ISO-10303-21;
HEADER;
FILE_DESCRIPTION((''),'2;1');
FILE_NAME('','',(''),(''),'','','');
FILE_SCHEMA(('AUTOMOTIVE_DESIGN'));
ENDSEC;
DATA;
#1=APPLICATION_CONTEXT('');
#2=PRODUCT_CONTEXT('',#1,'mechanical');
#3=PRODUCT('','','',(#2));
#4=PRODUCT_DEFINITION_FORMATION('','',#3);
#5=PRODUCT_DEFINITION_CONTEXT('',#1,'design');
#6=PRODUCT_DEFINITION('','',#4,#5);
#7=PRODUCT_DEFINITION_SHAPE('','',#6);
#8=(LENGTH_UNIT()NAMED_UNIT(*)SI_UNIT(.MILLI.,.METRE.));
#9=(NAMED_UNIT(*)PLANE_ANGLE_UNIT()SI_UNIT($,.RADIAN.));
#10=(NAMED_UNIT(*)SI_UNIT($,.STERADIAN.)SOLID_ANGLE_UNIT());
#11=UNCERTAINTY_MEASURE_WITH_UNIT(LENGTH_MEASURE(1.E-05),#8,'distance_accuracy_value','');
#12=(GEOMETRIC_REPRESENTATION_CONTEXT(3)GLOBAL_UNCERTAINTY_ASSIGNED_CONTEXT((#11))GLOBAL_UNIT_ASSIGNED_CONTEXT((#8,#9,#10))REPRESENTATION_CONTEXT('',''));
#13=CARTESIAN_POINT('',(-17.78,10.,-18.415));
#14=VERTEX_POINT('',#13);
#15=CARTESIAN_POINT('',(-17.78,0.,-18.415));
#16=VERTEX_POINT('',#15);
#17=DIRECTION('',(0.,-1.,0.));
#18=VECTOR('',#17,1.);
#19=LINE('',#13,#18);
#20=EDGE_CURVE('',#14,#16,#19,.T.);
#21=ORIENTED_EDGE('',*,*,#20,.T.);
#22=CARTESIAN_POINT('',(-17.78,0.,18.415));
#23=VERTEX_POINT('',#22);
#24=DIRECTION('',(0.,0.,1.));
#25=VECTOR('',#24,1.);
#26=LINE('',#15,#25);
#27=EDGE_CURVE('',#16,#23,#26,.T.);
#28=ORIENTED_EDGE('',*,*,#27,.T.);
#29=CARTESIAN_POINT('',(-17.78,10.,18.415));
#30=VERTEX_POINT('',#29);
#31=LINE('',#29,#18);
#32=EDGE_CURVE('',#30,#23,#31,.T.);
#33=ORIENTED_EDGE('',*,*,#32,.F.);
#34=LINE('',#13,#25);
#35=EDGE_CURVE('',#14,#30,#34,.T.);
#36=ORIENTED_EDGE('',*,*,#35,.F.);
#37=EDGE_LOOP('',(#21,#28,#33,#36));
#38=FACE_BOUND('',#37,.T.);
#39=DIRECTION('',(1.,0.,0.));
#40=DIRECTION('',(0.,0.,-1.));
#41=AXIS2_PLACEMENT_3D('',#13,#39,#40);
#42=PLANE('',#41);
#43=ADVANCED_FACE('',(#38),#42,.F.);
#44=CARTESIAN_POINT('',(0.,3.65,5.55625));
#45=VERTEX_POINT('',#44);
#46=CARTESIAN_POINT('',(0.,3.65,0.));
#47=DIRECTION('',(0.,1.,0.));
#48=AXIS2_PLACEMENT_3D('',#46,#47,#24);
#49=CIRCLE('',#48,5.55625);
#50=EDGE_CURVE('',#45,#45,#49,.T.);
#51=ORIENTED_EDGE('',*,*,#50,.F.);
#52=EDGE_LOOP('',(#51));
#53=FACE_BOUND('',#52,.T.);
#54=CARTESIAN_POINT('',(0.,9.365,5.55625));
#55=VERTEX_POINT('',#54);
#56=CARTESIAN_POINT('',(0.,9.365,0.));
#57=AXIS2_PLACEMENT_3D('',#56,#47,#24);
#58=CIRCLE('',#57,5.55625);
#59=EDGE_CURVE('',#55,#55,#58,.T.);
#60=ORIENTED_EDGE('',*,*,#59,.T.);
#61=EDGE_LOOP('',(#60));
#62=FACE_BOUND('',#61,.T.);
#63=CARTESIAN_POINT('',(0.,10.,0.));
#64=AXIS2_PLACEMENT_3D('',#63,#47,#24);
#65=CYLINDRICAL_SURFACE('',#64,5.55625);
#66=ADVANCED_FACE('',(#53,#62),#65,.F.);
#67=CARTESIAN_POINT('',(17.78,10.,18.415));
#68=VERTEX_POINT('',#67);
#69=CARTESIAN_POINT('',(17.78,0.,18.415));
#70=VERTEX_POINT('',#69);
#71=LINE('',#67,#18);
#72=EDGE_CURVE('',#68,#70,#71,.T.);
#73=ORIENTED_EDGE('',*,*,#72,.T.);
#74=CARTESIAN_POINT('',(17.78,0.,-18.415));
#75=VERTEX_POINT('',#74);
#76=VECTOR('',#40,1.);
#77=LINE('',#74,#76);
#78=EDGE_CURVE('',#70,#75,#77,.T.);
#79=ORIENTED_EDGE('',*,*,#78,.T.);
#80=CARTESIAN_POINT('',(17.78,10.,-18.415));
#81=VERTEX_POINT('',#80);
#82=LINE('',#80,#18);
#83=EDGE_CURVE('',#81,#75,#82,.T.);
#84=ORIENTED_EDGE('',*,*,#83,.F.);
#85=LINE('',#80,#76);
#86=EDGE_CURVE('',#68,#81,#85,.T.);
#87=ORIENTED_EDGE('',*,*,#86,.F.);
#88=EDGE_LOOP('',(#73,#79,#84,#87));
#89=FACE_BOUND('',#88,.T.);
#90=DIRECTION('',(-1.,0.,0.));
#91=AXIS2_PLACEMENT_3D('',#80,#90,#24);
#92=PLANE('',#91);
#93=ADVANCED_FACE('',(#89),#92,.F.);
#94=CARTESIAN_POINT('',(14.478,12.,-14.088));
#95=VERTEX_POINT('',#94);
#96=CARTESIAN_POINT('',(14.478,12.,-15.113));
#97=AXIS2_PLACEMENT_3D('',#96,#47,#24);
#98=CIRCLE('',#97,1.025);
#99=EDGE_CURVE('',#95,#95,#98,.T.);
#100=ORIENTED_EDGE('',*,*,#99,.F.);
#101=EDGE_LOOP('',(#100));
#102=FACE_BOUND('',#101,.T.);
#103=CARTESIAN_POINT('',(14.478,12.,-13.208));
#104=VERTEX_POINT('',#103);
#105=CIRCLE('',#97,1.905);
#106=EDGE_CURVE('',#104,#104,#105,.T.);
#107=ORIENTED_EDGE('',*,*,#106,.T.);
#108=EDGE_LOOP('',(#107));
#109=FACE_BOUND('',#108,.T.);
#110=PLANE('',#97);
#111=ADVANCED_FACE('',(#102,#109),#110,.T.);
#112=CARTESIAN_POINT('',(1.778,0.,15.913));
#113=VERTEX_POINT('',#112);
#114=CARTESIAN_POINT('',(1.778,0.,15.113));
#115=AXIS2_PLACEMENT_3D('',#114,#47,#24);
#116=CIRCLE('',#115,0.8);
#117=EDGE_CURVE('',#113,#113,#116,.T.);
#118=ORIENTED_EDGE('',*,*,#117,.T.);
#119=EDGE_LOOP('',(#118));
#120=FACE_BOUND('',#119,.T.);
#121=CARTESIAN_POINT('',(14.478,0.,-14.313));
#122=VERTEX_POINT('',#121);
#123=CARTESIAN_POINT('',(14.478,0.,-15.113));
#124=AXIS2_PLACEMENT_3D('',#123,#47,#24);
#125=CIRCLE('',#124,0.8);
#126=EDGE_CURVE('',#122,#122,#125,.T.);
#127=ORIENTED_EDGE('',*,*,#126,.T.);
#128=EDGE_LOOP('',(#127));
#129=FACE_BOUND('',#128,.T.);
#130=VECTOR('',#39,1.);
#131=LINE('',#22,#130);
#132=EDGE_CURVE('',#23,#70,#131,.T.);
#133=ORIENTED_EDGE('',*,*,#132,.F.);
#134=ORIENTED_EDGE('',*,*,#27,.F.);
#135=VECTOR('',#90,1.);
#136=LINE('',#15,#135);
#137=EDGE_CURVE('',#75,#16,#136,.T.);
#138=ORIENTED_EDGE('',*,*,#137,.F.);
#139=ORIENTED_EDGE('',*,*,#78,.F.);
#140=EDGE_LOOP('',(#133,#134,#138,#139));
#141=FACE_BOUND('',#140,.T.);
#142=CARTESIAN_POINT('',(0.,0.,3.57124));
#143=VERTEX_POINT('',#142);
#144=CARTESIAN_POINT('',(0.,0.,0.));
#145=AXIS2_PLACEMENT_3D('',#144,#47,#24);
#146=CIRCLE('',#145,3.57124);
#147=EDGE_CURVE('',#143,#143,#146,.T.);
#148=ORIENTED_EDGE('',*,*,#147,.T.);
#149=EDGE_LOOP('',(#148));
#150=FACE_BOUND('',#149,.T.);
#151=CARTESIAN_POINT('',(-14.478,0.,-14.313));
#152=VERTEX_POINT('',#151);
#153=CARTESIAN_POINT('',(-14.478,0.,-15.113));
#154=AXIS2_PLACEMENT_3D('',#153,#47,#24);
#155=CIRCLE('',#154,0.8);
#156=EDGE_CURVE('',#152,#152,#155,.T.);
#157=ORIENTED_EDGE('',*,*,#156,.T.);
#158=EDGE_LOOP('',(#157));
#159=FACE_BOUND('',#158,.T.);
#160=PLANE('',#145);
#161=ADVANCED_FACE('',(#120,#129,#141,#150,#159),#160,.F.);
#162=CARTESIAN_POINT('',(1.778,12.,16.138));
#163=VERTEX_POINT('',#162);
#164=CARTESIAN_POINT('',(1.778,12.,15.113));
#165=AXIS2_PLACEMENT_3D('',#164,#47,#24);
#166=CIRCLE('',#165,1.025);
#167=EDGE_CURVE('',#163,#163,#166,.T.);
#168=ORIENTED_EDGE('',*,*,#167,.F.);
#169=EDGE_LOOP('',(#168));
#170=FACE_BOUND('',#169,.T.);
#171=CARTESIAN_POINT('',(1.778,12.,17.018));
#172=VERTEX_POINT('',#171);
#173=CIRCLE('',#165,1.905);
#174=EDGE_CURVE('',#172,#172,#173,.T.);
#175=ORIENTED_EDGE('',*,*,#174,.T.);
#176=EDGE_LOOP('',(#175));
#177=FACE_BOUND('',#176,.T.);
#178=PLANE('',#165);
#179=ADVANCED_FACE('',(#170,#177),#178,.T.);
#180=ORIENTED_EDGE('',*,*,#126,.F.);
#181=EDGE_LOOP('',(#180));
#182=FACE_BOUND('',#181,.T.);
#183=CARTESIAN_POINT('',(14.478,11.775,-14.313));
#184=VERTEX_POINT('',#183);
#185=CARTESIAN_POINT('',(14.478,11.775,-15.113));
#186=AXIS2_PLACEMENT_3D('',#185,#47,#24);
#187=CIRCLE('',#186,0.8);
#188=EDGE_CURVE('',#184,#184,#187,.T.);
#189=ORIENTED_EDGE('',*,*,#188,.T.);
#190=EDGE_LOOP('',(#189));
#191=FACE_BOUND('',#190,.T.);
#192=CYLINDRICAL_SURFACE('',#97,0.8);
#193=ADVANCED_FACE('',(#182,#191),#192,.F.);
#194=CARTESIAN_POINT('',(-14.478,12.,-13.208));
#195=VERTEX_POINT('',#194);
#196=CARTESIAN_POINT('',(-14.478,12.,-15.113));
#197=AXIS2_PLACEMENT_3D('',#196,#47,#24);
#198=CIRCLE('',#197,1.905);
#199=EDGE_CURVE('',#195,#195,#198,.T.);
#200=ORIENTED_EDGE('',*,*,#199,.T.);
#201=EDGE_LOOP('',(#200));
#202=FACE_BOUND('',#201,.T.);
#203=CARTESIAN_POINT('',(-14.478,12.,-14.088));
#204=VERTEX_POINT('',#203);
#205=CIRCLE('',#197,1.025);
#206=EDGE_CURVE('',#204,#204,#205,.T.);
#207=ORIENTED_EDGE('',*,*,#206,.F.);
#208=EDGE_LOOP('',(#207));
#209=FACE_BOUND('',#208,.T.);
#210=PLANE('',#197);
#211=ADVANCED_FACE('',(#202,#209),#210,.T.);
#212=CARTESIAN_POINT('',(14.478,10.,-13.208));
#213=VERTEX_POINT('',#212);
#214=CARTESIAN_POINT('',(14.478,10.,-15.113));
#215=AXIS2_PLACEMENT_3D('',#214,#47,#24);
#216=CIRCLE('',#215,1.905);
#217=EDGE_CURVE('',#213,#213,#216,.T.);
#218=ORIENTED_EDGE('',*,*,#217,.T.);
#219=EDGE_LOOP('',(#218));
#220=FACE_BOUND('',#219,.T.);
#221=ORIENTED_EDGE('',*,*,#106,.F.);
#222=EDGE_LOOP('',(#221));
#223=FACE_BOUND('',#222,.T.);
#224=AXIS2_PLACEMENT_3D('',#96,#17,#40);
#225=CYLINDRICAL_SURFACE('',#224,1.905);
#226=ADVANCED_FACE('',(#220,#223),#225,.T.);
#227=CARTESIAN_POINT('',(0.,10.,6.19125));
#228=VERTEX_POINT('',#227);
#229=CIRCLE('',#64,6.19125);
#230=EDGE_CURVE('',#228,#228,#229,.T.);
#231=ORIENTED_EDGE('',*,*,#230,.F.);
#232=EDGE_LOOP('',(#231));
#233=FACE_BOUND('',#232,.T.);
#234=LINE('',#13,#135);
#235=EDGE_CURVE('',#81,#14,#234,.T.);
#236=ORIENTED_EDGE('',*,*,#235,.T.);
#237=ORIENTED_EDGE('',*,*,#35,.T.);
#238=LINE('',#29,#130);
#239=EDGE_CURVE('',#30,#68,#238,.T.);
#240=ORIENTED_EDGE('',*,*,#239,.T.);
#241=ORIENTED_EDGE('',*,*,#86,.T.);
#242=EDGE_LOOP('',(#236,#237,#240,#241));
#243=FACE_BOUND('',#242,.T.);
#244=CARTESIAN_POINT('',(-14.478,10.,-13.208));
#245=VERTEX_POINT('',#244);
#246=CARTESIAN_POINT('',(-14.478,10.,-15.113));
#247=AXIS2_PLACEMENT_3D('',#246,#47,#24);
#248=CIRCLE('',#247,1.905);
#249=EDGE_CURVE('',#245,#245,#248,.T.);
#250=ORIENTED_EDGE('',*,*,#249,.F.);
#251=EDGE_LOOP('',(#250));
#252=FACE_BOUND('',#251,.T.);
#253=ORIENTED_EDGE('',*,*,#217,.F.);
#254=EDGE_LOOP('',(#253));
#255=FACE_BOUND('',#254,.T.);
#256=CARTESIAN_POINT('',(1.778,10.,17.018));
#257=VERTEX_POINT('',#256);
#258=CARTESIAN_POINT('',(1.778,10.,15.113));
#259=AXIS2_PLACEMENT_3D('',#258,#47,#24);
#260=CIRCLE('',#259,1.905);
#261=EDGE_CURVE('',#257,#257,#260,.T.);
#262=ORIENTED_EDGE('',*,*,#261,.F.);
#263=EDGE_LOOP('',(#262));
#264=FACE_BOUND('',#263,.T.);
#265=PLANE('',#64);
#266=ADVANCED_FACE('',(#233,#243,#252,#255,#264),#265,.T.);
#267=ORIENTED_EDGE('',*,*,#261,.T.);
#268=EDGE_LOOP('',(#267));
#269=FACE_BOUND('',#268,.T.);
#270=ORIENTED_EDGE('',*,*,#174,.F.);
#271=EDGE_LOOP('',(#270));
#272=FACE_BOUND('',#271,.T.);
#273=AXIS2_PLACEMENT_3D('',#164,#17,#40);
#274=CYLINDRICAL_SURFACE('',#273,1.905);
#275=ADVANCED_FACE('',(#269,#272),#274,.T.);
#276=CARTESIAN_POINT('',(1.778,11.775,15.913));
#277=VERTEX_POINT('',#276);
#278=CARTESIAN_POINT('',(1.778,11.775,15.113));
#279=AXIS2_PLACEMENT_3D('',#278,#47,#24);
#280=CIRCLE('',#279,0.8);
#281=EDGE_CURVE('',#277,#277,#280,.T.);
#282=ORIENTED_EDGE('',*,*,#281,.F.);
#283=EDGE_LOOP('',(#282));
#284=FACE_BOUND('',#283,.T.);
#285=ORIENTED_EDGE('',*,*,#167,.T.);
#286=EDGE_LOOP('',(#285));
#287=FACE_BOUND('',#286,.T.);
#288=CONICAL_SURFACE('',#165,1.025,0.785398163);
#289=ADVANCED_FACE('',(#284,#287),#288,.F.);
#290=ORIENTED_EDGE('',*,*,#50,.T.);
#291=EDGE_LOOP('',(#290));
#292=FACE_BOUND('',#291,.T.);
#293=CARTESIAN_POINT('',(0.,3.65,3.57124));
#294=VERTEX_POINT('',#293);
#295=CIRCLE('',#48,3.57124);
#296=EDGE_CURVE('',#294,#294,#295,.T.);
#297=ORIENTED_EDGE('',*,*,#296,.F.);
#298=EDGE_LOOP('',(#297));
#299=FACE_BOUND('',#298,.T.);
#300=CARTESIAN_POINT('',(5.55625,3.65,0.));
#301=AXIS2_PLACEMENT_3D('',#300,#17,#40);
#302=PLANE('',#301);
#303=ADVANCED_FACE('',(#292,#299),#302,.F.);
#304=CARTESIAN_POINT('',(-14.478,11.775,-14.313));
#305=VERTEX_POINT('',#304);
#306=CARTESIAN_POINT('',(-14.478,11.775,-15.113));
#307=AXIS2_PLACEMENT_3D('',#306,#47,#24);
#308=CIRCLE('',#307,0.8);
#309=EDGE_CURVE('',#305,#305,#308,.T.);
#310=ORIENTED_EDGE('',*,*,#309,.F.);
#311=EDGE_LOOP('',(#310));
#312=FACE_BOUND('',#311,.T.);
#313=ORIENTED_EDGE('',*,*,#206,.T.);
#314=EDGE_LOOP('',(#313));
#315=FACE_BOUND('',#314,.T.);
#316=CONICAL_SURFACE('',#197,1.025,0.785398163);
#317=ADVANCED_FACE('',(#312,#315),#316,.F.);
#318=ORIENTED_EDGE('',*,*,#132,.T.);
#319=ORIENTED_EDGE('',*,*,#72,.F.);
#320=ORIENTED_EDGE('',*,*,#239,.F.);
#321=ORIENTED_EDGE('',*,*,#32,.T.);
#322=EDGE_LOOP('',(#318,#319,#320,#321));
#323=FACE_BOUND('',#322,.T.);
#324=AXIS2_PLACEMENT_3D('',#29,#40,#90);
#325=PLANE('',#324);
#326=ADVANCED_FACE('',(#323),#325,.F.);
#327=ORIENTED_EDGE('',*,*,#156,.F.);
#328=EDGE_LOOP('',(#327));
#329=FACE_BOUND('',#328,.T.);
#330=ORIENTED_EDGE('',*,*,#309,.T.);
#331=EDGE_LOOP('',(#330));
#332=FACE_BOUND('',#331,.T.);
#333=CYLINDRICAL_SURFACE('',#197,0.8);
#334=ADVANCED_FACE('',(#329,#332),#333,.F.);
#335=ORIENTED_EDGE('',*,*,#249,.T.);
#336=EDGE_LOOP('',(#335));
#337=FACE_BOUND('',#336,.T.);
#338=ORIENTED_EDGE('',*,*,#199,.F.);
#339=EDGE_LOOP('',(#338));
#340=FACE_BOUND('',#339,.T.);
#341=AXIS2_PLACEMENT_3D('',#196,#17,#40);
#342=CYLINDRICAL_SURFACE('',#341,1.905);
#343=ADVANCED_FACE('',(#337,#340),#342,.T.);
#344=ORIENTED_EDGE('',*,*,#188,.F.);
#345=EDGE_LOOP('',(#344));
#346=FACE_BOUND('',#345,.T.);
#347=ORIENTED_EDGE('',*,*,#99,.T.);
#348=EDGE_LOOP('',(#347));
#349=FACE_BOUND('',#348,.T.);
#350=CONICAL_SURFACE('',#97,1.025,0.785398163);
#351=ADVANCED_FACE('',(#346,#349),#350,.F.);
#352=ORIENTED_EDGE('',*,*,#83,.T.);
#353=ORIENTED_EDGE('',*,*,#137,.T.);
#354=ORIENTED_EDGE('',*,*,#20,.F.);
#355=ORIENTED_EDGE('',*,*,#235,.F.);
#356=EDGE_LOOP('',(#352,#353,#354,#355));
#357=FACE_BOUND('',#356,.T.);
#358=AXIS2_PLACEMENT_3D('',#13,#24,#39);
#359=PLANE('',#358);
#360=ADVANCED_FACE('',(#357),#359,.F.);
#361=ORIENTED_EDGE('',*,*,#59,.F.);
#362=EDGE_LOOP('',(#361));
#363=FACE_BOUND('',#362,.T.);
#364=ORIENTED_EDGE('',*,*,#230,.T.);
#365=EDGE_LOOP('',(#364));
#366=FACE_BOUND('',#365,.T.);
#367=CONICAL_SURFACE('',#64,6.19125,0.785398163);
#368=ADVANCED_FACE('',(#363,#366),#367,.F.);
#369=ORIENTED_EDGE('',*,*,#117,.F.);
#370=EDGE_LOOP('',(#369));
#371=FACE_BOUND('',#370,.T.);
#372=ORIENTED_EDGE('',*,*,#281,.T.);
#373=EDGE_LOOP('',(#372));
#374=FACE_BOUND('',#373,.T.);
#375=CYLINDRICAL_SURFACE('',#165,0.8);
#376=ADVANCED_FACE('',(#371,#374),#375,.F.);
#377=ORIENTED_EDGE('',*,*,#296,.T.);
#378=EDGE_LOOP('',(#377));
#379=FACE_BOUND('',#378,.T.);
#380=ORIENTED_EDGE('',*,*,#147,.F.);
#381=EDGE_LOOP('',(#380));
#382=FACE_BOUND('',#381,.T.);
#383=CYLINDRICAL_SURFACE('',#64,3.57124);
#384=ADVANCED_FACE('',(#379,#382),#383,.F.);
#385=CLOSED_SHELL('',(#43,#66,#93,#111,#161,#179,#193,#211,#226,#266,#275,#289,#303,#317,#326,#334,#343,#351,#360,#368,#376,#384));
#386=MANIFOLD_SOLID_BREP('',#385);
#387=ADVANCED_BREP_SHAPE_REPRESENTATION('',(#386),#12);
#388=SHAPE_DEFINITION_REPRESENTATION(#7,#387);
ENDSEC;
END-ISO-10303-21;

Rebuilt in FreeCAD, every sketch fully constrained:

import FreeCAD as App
import Part
import Sketcher
from FreeCAD import Vector
Q = App.Units.Quantity

doc = App.newDocument("Part")
body = doc.addObject("PartDesign::Body", "Body")

sketch1 = body.newObject("Sketcher::SketchObject", "Sketch")
sketch1.AttachmentSupport = (doc.getObject("XZ_Plane"), [""])
sketch1.MapMode = "FlatFace"
sketch1.addGeometry([
    Part.LineSegment(Vector(-17.78, -18.415, 0), Vector(-17.78, 18.415, 0)),
    Part.LineSegment(Vector(-17.78, 18.415, 0), Vector(17.78, 18.415, 0)),
    Part.LineSegment(Vector(17.78, 18.415, 0), Vector(17.78, -18.415, 0)),
    Part.LineSegment(Vector(17.78, -18.415, 0), Vector(-17.78, -18.415, 0)),
], False)
sketch1.addConstraint([
    Sketcher.Constraint("Coincident", 0, 2, 1, 1),
    Sketcher.Constraint("Coincident", 1, 2, 2, 1),
    Sketcher.Constraint("Coincident", 2, 2, 3, 1),
    Sketcher.Constraint("Coincident", 3, 2, 0, 1),
    Sketcher.Constraint("Vertical", 0),
    Sketcher.Constraint("Horizontal", 1),
    Sketcher.Constraint("Vertical", 2),
    Sketcher.Constraint("Horizontal", 3),
    Sketcher.Constraint("Symmetric", 0, 2, 2, 2, -1, 1),
    Sketcher.Constraint("DistanceX", 1, 1, 1, 2, Q("1.4 in")),
    Sketcher.Constraint("DistanceY", 0, 1, 0, 2, Q("1.45 in")),
])
pad1 = body.newObject("PartDesign::Pad", "Pad")
pad1.Profile = sketch1
pad1.Length = 10
pad1.Reversed = True

sketch2 = body.newObject("Sketcher::SketchObject", "Sketch001")
sketch2.AttachmentSupport = (doc.getObject("YZ_Plane"), [""])
sketch2.MapMode = "FlatFace"
sketch2.addGeometry([
    Part.LineSegment(Vector(0, 0, 0), Vector(10, 0, 0)),
    Part.LineSegment(Vector(10, 0, 0), Vector(10, 6.19125, 0)),
    Part.LineSegment(Vector(10, 6.19125, 0), Vector(9.365, 5.55625, 0)),
    Part.LineSegment(Vector(9.365, 5.55625, 0), Vector(3.65, 5.55625, 0)),
    Part.LineSegment(Vector(3.65, 5.55625, 0), Vector(3.65, 3.57124, 0)),
    Part.LineSegment(Vector(3.65, 3.57124, 0), Vector(0, 3.57124, 0)),
    Part.LineSegment(Vector(0, 3.57124, 0), Vector(0, 0, 0)),
], False)
sketch2.addConstraint([
    Sketcher.Constraint("Coincident", 0, 2, 1, 1),
    Sketcher.Constraint("Coincident", 1, 2, 2, 1),
    Sketcher.Constraint("Coincident", 2, 2, 3, 1),
    Sketcher.Constraint("Coincident", 3, 2, 4, 1),
    Sketcher.Constraint("Coincident", 4, 2, 5, 1),
    Sketcher.Constraint("Coincident", 5, 2, 6, 1),
    Sketcher.Constraint("Coincident", 6, 2, 0, 1),
    Sketcher.Constraint("Horizontal", 0),
    Sketcher.Constraint("Vertical", 1),
    Sketcher.Constraint("Horizontal", 3),
    Sketcher.Constraint("Vertical", 4),
    Sketcher.Constraint("Horizontal", 5),
    Sketcher.Constraint("Vertical", 6),
    Sketcher.Constraint("Coincident", 6, 2, -1, 1),
    Sketcher.Constraint("Angle", 2, Q("-135 deg")),
    Sketcher.Constraint("DistanceX", 3, 2, 3, 1, Q("0.225 in")),
    Sketcher.Constraint("DistanceX", 3, 2, 1, 2, Q("0.25 in")),
    Sketcher.Constraint("DistanceY", 6, 2, 6, 1, Q("0.1406 in")),
    Sketcher.Constraint("DistanceY", -1, 1, 2, 2, Q("0.21875 in")),
    Sketcher.Constraint("DistanceX", 0, 1, 0, 2, Q("10 mm")),
])
groove = body.newObject("PartDesign::Groove", "Groove")
groove.Profile = sketch2
groove.ReferenceAxis = (sketch2, ["H_Axis"])
groove.Angle = 360

sketch3 = body.newObject("Sketcher::SketchObject", "Sketch002")
sketch3.AttachmentSupport = (doc.getObject("XZ_Plane"), [""])
sketch3.MapMode = "FlatFace"
sketch3.AttachmentOffset = App.Placement(Vector(0, 0, -10), App.Rotation())
sketch3.addGeometry([
    Part.Circle(Vector(-14.478, -15.113, 0), Vector(0, 0, 1), 1.905),
    Part.Circle(Vector(14.478, -15.113, 0), Vector(0, 0, 1), 1.905),
    Part.Circle(Vector(1.778, 15.113, 0), Vector(0, 0, 1), 1.905),
], False)
sketch3.addConstraint([
    Sketcher.Constraint("Equal", 0, 1),
    Sketcher.Constraint("Equal", 1, 2),
    Sketcher.Constraint("Symmetric", 0, 3, 1, 3, -2),
    Sketcher.Constraint("Diameter", 0, Q("0.15 in")),
    Sketcher.Constraint("DistanceX", 2, 3, 1, 3, Q("0.5 in")),
    Sketcher.Constraint("DistanceX", 0, 3, -1, 1, Q("0.57 in")),
    Sketcher.Constraint("DistanceY", 1, 3, 2, 3, Q("1.19 in")),
    Sketcher.Constraint("DistanceY", 0, 3, -1, 1, Q("0.595 in")),
])
pad2 = body.newObject("PartDesign::Pad", "Pad001")
pad2.Profile = sketch3
pad2.Length = 2
pad2.Reversed = True

sketch4 = body.newObject("Sketcher::SketchObject", "Sketch003")
sketch4.AttachmentSupport = (doc.getObject("XZ_Plane"), [""])
sketch4.MapMode = "FlatFace"
sketch4.AttachmentOffset = App.Placement(Vector(0, 0, -12), App.Rotation())
sketch4.addGeometry([
    Part.Circle(Vector(-14.478, -15.113, 0), Vector(0, 0, 1), 0.8),
    Part.Circle(Vector(14.478, -15.113, 0), Vector(0, 0, 1), 0.8),
    Part.Circle(Vector(1.778, 15.113, 0), Vector(0, 0, 1), 0.8),
], False)
sketch4.addConstraint([
    Sketcher.Constraint("Equal", 0, 1),
    Sketcher.Constraint("Equal", 1, 2),
    Sketcher.Constraint("Symmetric", 0, 3, 1, 3, -2),
    Sketcher.Constraint("DistanceX", 2, 3, 1, 3, Q("0.5 in")),
    Sketcher.Constraint("Diameter", 0, Q("1.6 mm")),
    Sketcher.Constraint("DistanceX", 0, 3, -1, 1, Q("0.57 in")),
    Sketcher.Constraint("DistanceY", 1, 3, 2, 3, Q("1.19 in")),
    Sketcher.Constraint("DistanceY", 0, 3, -1, 1, Q("0.595 in")),
])
doc.recompute()
hole = body.newObject("PartDesign::Hole", "Hole")
hole.Profile = sketch4
hole.ThreadType = "None"
hole.Diameter = 1.6
hole.DepthType = "ThroughAll"
hole.HoleCutType = "Countersink"
hole.HoleCutDiameter = 2.05
hole.HoleCutCountersinkAngle = 90
hole.Reversed = True

doc.recompute()
